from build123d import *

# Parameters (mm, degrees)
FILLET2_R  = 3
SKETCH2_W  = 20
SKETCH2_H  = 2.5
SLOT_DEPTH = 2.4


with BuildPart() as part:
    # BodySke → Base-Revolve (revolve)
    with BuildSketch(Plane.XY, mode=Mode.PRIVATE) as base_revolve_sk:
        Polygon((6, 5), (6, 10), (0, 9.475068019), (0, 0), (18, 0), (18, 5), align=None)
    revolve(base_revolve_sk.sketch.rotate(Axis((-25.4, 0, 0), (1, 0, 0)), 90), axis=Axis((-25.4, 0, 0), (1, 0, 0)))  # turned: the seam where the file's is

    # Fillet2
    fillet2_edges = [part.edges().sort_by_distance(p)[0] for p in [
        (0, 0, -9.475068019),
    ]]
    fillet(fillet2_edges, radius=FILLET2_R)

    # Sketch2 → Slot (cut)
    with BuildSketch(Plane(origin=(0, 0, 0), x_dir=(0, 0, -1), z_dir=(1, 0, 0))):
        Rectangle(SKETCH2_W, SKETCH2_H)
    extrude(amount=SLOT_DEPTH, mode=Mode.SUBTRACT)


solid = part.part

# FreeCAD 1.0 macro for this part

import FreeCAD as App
import Part
import Sketcher
Q = App.Units.Quantity


def edges_at(feature, points):
    """Names of the edges that pass closest to the given points."""
    edges = feature.Shape.Edges
    near = lambda p: min(range(len(edges)), key=lambda i: edges[i].distToShape(Part.Vertex(*p))[0])
    return sorted({f"Edge{near(p) + 1}" for p in points})

doc = App.newDocument("Part")
body = doc.addObject("PartDesign::Body", "Body")

sketch1 = body.newObject("Sketcher::SketchObject", "Sketch")
sketch1.AttachmentSupport = (doc.getObject("XY_Plane"), [""])
sketch1.MapMode = "FlatFace"
sketch1.addGeometry([
    Part.LineSegment(App.Vector(6, 5, 0), App.Vector(6, 10, 0)),
    Part.LineSegment(App.Vector(6, 10, 0), App.Vector(0, 9, 0)),
    Part.LineSegment(App.Vector(0, 9, 0), App.Vector(0, 0, 0)),
    Part.LineSegment(App.Vector(0, 0, 0), App.Vector(18, 0, 0)),
    Part.LineSegment(App.Vector(18, 0, 0), App.Vector(18, 5, 0)),
    Part.LineSegment(App.Vector(18, 5, 0), App.Vector(6, 5, 0)),
], False)
sketch1.addConstraint([
    Sketcher.Constraint("Coincident", 0, 2, 1, 1),
    Sketcher.Constraint("Coincident", 1, 2, 2, 1),
    Sketcher.Constraint("Coincident", 2, 2, 3, 1),
    Sketcher.Constraint("Coincident", 3, 2, 4, 1),
    Sketcher.Constraint("Coincident", 4, 2, 5, 1),
    Sketcher.Constraint("Coincident", 5, 2, 0, 1),
    Sketcher.Constraint("Vertical", 0),
    Sketcher.Constraint("Vertical", 2),
    Sketcher.Constraint("Horizontal", 3),
    Sketcher.Constraint("Vertical", 4),
    Sketcher.Constraint("Horizontal", 5),
    Sketcher.Constraint("Coincident", 2, 2, -1, 1),
    Sketcher.Constraint("Equal", 0, 4),
    Sketcher.Constraint("DistanceX", 3, 1, 3, 2, 18.0),
    Sketcher.Constraint("DistanceX", 5, 2, 5, 1, 12.0),
    Sketcher.Constraint("DistanceY", 0, 1, 0, 2, 5.0),
    Sketcher.Constraint("Angle", 1, Q("-175 deg")),
])
revolution = body.newObject("PartDesign::Revolution", "Revolution")
revolution.Profile = sketch1
revolution.ReferenceAxis = (sketch1, ["H_Axis"])
revolution.Angle = 360
doc.recompute()

fillet = body.newObject("PartDesign::Fillet", "Fillet")
fillet.Base = (revolution, edges_at(revolution, [(0, 0, -9.475)]))
fillet.Radius = 3

sketch2 = body.newObject("Sketcher::SketchObject", "Sketch001")
sketch2.AttachmentSupport = (doc.getObject("YZ_Plane"), [""])
sketch2.MapMode = "FlatFace"
sketch2.addGeometry([
    Part.LineSegment(App.Vector(1.2, 10, 0), App.Vector(-1.2, 10, 0)),
    Part.LineSegment(App.Vector(-1.2, 10, 0), App.Vector(-1.2, -10, 0)),
    Part.LineSegment(App.Vector(-1.2, -10, 0), App.Vector(1.2, -10, 0)),
    Part.LineSegment(App.Vector(1.2, -10, 0), App.Vector(1.2, 10, 0)),
], False)
sketch2.addConstraint([
    Sketcher.Constraint("Coincident", 0, 2, 1, 1),
    Sketcher.Constraint("Coincident", 1, 2, 2, 1),
    Sketcher.Constraint("Coincident", 2, 2, 3, 1),
    Sketcher.Constraint("Coincident", 3, 2, 0, 1),
    Sketcher.Constraint("Horizontal", 0),
    Sketcher.Constraint("Vertical", 1),
    Sketcher.Constraint("Horizontal", 2),
    Sketcher.Constraint("Vertical", 3),
    Sketcher.Constraint("Symmetric", 0, 2, 2, 2, -1, 1),
    Sketcher.Constraint("DistanceY", 1, 2, 1, 1, 20.0),
    Sketcher.Constraint("DistanceX", 0, 2, 0, 1, 2.5),
])
pocket1 = body.newObject("PartDesign::Pocket", "Pocket")
pocket1.Profile = sketch2
pocket1.Length = 2.4
pocket1.Reversed = True

doc.recompute()
